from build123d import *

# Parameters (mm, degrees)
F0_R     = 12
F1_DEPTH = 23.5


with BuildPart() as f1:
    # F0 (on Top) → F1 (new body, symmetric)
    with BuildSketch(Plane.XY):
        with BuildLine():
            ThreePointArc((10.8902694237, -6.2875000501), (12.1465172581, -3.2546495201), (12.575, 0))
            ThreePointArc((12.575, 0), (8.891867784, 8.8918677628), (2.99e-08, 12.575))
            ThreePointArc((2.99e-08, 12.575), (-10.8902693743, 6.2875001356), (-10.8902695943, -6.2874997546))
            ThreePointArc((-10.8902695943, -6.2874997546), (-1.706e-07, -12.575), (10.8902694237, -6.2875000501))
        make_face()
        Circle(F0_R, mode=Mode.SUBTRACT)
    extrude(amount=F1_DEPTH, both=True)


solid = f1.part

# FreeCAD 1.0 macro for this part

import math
import FreeCAD as App
import Part
import Sketcher

V = App.Vector
Q = App.Units.Quantity

doc = App.newDocument("Part")
params = doc.addObject("Spreadsheet::Sheet", "Params")
for row, (alias, value) in enumerate([
    ("sketch1_diameter", "24 mm"),
    ("pad1_length", "47 mm"),
], start=1):
    params.set(f"A{row}", alias)
    params.set(f"B{row}", "=" + value)
    params.setAlias(f"B{row}", alias)

body = doc.addObject("PartDesign::Body", "Body")

# Sketch on XY plane
sketch1 = body.newObject("Sketcher::SketchObject", "Sketch")
sketch1.AttachmentSupport = (doc.getObject("XY_Plane"), [""])
sketch1.MapMode = "FlatFace"
sketch1.addGeometry(Part.ArcOfCircle(Part.Circle(V(0, 0, 0), V(0, 0, 1), 13), math.radians(-30), math.radians(0)), False)
sketch1.addGeometry(Part.ArcOfCircle(Part.Circle(V(0, 0, 0), V(0, 0, 1), 13), math.radians(0), math.radians(90)), False)
sketch1.addGeometry(Part.ArcOfCircle(Part.Circle(V(0, 0, 0), V(0, 0, 1), 13), math.radians(90), math.radians(210)), False)
sketch1.addGeometry(Part.ArcOfCircle(Part.Circle(V(0, 0, 0), V(0, 0, 1), 13), math.radians(-150), math.radians(-30)), False)
sketch1.addGeometry(Part.Circle(V(0, 0, 0), V(0, 0, 1), 12), False)
sketch1.addConstraint(Sketcher.Constraint("Tangent", 0, 2, 1, 1))
sketch1.addConstraint(Sketcher.Constraint("Tangent", 1, 2, 2, 1))
sketch1.addConstraint(Sketcher.Constraint("Tangent", 2, 2, 3, 1))
sketch1.addConstraint(Sketcher.Constraint("Tangent", 3, 2, 0, 1))
sketch1.addConstraint(Sketcher.Constraint("Coincident", 0, 3, -1, 1))
sketch1.addConstraint(Sketcher.Constraint("Coincident", 4, 3, -1, 1))
sketch1.addConstraint(Sketcher.Constraint("Equal", 0, 1))
sketch1.addConstraint(Sketcher.Constraint("PointOnObject", 0, 2, -1))
sketch1.addConstraint(Sketcher.Constraint("PointOnObject", 1, 2, -2))
sketch1.addConstraint(Sketcher.Constraint("Horizontal", 2, 2, 3, 2))
sketch1.addConstraint(Sketcher.Constraint("Diameter", 4, Q("24 mm")))
sketch1.addConstraint(Sketcher.Constraint("Radius", 0, Q("12.575 mm")))
sketch1.addConstraint(Sketcher.Constraint("DistanceY", 2, 2, -1, 1, Q("6.2875 mm")))
sketch1.setExpression("Constraints[10]", "Params.sketch1_diameter")
pad1 = body.newObject("PartDesign::Pad", "Pad")
pad1.Profile = sketch1
pad1.setExpression("Length", "Params.pad1_length")
pad1.Midplane = True

doc.recompute()
